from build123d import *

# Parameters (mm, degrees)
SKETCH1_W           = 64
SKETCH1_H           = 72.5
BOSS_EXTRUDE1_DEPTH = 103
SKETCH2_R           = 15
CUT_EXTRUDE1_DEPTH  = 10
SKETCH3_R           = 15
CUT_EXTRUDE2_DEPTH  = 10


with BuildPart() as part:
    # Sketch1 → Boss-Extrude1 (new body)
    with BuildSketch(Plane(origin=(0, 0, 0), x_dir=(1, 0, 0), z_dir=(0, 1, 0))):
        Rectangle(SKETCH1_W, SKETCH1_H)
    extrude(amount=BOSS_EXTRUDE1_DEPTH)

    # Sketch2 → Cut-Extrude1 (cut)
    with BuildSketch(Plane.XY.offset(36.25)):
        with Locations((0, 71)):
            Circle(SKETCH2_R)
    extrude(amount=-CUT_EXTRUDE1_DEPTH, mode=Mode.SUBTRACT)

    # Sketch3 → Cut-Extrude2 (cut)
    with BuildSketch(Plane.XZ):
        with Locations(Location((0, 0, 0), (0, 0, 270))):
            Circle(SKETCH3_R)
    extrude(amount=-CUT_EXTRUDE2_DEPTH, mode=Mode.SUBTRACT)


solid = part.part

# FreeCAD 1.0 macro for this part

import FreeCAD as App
import Part
import Sketcher

V = App.Vector
Q = App.Units.Quantity


def add_polygon(sketch, points):
    """Adds a closed chain of lines whose ends are joined by coincident constraints."""
    first, n = sketch.GeometryCount, len(points)
    for a, b in zip(points, points[1:] + points[:1]):
        sketch.addGeometry(Part.LineSegment(App.Vector(*a, 0), App.Vector(*b, 0)), False)
    for i in range(n):
        sketch.addConstraint(Sketcher.Constraint("Coincident", first + i, 2, first + (i + 1) % n, 1))

doc = App.newDocument("Part")
params = doc.addObject("Spreadsheet::Sheet", "Params")
for row, (alias, value) in enumerate([
    ("sketch1_width", "64 mm"),
    ("sketch1_height", "72.5 mm"),
    ("pad1_length", "103 mm"),
    ("sketch2_diameter", "30 mm"),
    ("pocket1_length", "10 mm"),
    ("sketch3_diameter", "30 mm"),
    ("pocket2_length", "10 mm"),
], start=1):
    params.set(f"A{row}", alias)
    params.set(f"B{row}", "=" + value)
    params.setAlias(f"B{row}", alias)

body = doc.addObject("PartDesign::Body", "Body")

# Sketch on XZ plane
sketch1 = body.newObject("Sketcher::SketchObject", "Sketch")
sketch1.AttachmentSupport = (doc.getObject("XZ_Plane"), [""])
sketch1.MapMode = "FlatFace"
add_polygon(sketch1, [(-32, -36), (-32, 36), (32, 36), (32, -36)])  # lines 0-3
sketch1.addConstraint([
    Sketcher.Constraint("Vertical", 0),
    Sketcher.Constraint("Horizontal", 1),
    Sketcher.Constraint("Vertical", 2),
    Sketcher.Constraint("Horizontal", 3),
    Sketcher.Constraint("Symmetric", 0, 2, 2, 2, -1, 1),
    Sketcher.Constraint("DistanceX", 1, 1, 1, 2, Q("64 mm")),
    Sketcher.Constraint("DistanceY", 0, 1, 0, 2, Q("72.5 mm")),
])
sketch1.setExpression("Constraints[9]", "Params.sketch1_width")
sketch1.setExpression("Constraints[10]", "Params.sketch1_height")
pad1 = body.newObject("PartDesign::Pad", "Pad")
pad1.Profile = sketch1
pad1.setExpression("Length", "Params.pad1_length")
pad1.Reversed = True

# Sketch on XY plane
sketch2 = body.newObject("Sketcher::SketchObject", "Sketch001")
sketch2.AttachmentSupport = (doc.getObject("XY_Plane"), [""])
sketch2.MapMode = "FlatFace"
sketch2.AttachmentOffset = App.Placement(V(0, 0, 36.25), App.Rotation())
sketch2.addGeometry(Part.Circle(V(0, 71, 0), V(0, 0, 1), 15), False)
sketch2.addConstraint([
    Sketcher.Constraint("PointOnObject", 0, 3, -2),
    Sketcher.Constraint("Diameter", 0, Q("30 mm")),
    Sketcher.Constraint("DistanceY", -1, 1, 0, 3, Q("71 mm")),
])
sketch2.setExpression("Constraints[1]", "Params.sketch2_diameter")
pocket1 = body.newObject("PartDesign::Pocket", "Pocket")
pocket1.Profile = sketch2
pocket1.setExpression("Length", "Params.pocket1_length")

# Sketch on XZ plane
sketch3 = body.newObject("Sketcher::SketchObject", "Sketch002")
sketch3.AttachmentSupport = (doc.getObject("XZ_Plane"), [""])
sketch3.MapMode = "FlatFace"
sketch3.addGeometry(Part.Circle(V(0, 0, 0), V(0, 0, 1), 15), False)
sketch3.addConstraint([
    Sketcher.Constraint("Coincident", 0, 3, -1, 1),
    Sketcher.Constraint("Diameter", 0, Q("30 mm")),
])
sketch3.setExpression("Constraints[1]", "Params.sketch3_diameter")
pocket2 = body.newObject("PartDesign::Pocket", "Pocket001")
pocket2.Profile = sketch3
pocket2.setExpression("Length", "Params.pocket2_length")

doc.recompute()
